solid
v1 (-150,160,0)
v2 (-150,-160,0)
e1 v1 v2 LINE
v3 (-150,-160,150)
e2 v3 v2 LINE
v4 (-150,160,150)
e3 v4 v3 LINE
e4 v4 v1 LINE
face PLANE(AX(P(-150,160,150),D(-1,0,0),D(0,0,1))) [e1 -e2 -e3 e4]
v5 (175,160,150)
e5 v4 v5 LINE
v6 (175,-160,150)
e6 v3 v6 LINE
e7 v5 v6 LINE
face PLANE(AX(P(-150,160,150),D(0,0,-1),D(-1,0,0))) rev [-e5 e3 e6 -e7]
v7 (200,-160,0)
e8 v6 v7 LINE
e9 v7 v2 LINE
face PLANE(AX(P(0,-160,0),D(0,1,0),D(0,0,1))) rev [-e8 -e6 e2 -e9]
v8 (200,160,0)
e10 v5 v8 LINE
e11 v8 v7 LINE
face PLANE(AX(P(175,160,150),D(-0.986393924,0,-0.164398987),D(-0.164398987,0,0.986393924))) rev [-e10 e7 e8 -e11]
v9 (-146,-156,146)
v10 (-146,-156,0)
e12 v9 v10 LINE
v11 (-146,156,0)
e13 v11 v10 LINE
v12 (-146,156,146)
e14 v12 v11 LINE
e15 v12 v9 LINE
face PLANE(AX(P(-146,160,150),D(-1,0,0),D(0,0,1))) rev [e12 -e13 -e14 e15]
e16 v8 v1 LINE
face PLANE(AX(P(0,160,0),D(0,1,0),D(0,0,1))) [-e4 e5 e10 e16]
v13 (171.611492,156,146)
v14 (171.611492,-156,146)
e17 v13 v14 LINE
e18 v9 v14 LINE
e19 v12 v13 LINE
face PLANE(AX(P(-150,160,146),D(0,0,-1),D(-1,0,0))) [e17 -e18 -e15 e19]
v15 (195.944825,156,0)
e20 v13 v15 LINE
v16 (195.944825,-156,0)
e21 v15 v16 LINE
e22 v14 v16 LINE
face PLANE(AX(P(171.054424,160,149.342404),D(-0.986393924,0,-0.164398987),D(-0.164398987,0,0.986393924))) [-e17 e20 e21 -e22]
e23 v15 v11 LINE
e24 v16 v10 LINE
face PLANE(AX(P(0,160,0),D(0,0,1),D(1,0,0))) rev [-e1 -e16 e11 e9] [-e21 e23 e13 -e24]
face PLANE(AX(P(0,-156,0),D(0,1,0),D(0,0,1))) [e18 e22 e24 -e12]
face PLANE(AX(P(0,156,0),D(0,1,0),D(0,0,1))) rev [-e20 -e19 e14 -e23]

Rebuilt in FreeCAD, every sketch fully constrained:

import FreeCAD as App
import Part
import Sketcher

V = App.Vector


def faces_at(feature, points):
    """Names of the faces that lie closest to the given points."""
    faces = feature.Shape.Faces
    near = lambda p: min(range(len(faces)), key=lambda i: faces[i].distToShape(Part.Vertex(*p))[0])
    return sorted({f"Face{near(p) + 1}" for p in points})


def add_polygon(sketch, points):
    """Adds a closed chain of lines whose ends are joined by coincident constraints."""
    first, n = sketch.GeometryCount, len(points)
    for a, b in zip(points, points[1:] + points[:1]):
        sketch.addGeometry(Part.LineSegment(App.Vector(*a, 0), App.Vector(*b, 0)), False)
    for i in range(n):
        sketch.addConstraint(Sketcher.Constraint("Coincident", first + i, 2, first + (i + 1) % n, 1))

doc = App.newDocument("Part")
body = doc.addObject("PartDesign::Body", "Body")

sketch1 = body.newObject("Sketcher::SketchObject", "Sketch")
sketch1.AttachmentSupport = (doc.getObject("XZ_Plane"), [""])
sketch1.MapMode = "FlatFace"
add_polygon(sketch1, [(200, 0), (-150, 0), (-150, 150), (175, 150)])
sketch1.addConstraint(Sketcher.Constraint("Horizontal", 0))
sketch1.addConstraint(Sketcher.Constraint("Vertical", 1))
sketch1.addConstraint(Sketcher.Constraint("Horizontal", 2))
sketch1.addConstraint(Sketcher.Constraint("PointOnObject", 0, 2, -1))
sketch1.addConstraint(Sketcher.Constraint("DistanceX", 0, 2, 0, 1, 350.0))
sketch1.addConstraint(Sketcher.Constraint("DistanceX", 2, 1, 2, 2, 325.0))
sketch1.addConstraint(Sketcher.Constraint("DistanceY", 1, 1, 1, 2, 150.0))
sketch1.addConstraint(Sketcher.Constraint("DistanceX", 0, 2, -1, 1, 150.0))
pad1 = body.newObject("PartDesign::Pad", "Pad")
pad1.Profile = sketch1
pad1.Length = 320
pad1.Midplane = True
doc.recompute()

thickness = body.newObject("PartDesign::Thickness", "Thickness")
thickness.Base = (pad1, faces_at(pad1, [(25, 0, 0)]))
thickness.Value = 4
thickness.Reversed = True
thickness.Join = "Intersection"

doc.recompute()
